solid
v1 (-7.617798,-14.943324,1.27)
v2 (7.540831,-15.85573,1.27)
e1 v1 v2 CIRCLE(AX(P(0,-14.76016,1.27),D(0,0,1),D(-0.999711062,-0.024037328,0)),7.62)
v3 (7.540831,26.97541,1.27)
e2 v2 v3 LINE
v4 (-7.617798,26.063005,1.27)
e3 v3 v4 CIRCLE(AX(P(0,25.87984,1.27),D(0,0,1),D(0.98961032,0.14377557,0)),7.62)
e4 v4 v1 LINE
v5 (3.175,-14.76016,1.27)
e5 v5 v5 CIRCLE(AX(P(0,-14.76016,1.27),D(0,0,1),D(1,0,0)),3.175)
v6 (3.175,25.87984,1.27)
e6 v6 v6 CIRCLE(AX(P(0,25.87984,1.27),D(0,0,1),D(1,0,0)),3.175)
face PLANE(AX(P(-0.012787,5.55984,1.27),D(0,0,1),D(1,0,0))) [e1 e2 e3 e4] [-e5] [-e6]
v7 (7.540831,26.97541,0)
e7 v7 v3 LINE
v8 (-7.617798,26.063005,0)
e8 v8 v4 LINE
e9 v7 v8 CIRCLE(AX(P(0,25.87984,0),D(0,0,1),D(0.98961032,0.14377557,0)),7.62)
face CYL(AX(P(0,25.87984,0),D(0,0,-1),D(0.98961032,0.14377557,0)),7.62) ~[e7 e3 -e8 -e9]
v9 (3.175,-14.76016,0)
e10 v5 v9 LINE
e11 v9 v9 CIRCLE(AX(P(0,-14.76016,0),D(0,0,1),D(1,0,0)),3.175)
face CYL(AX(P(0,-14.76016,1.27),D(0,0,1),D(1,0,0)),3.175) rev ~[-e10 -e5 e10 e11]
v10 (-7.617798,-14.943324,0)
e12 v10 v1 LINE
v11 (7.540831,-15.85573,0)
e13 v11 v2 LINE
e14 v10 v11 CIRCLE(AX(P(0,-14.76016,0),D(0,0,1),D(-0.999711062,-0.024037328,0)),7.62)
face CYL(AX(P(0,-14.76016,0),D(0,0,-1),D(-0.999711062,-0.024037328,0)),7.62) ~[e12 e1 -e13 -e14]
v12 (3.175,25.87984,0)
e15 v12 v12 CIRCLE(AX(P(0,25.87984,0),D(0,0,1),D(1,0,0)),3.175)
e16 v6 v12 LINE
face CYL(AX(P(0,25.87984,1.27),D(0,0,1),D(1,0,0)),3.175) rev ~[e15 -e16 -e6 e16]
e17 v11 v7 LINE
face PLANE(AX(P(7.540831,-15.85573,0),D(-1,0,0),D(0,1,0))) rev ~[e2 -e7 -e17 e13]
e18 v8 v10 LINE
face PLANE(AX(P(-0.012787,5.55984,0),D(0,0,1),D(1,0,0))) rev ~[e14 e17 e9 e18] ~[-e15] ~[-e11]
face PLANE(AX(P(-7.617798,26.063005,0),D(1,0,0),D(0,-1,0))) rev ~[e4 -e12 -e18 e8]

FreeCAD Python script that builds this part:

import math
import FreeCAD as App
import Part
import Sketcher

V = App.Vector
Q = App.Units.Quantity

doc = App.newDocument("Part")
params = doc.addObject("Spreadsheet::Sheet", "Params")
for row, (alias, value) in enumerate([
    ("sketch1_radius", "0.3 in"),
    ("pad1_length", "0.05 in"),
    ("sketch2_diameter", "0.25 in"),
    ("pocket1_length", "1 in"),
], start=1):
    params.set(f"A{row}", alias)
    params.set(f"B{row}", "=" + value)
    params.setAlias(f"B{row}", alias)

body = doc.addObject("PartDesign::Body", "Body")

# Sketch on XY plane
sketch1 = body.newObject("Sketcher::SketchObject", "Sketch")
sketch1.AttachmentSupport = (doc.getObject("XY_Plane"), [""])
sketch1.MapMode = "FlatFace"
sketch1.addGeometry([
    Part.ArcOfCircle(Part.Circle(V(0, 25.87984, 0), V(0, 0, 1), 7.62), math.radians(8.266382), math.radians(178.62263)),
    Part.LineSegment(V(-7.617798, 26.063005, 0), V(-7.617798, -14.943324, 0)),
    Part.ArcOfCircle(Part.Circle(V(0, -14.76016, 0), V(0, 0, 1), 7.62), math.radians(-178.62263), math.radians(-8.266382)),
    Part.LineSegment(V(7.540831, -15.85573, 0), V(7.540831, 26.97541, 0)),
], False)
sketch1.addConstraint([
    Sketcher.Constraint("Coincident", 0, 2, 1, 1),
    Sketcher.Constraint("Coincident", 1, 2, 2, 1),
    Sketcher.Constraint("Coincident", 2, 2, 3, 1),
    Sketcher.Constraint("Coincident", 3, 2, 0, 1),
    Sketcher.Constraint("Vertical", 1),
    Sketcher.Constraint("Vertical", 3),
    Sketcher.Constraint("Equal", 0, 2),
    Sketcher.Constraint("PointOnObject", 0, 3, -2),
    Sketcher.Constraint("PointOnObject", 2, 3, -2),
    Sketcher.Constraint("Radius", 0, Q("0.3 in")),
    Sketcher.Constraint("DistanceY", 2, 3, 0, 3, Q("1.6 in")),
    Sketcher.Constraint("DistanceY", 1, 2, 1, 1, Q("41.006329 mm")),
    Sketcher.Constraint("DistanceY", 3, 1, 3, 2, Q("42.83114 mm")),
    Sketcher.Constraint("DistanceY", -1, 1, 0, 3, Q("25.87984 mm")),
])
sketch1.setExpression("Constraints[9]", "Params.sketch1_radius")
pad1 = body.newObject("PartDesign::Pad", "Pad")
pad1.Profile = sketch1
pad1.setExpression("Length", "Params.pad1_length")

# Sketch on XY plane
sketch2 = body.newObject("Sketcher::SketchObject", "Sketch001")
sketch2.AttachmentSupport = (doc.getObject("XY_Plane"), [""])
sketch2.MapMode = "FlatFace"
sketch2.AttachmentOffset = App.Placement(V(0, 0, 0.05 * 25.4), App.Rotation())
sketch2.addGeometry([
    Part.Circle(V(0, 25.87984, 0), V(0, 0, 1), 3.175),
    Part.Circle(V(0, -14.76016, 0), V(0, 0, 1), 3.175),
], False)
sketch2.addConstraint([
    Sketcher.Constraint("Equal", 0, 1),
    Sketcher.Constraint("PointOnObject", 0, 3, -2),
    Sketcher.Constraint("PointOnObject", 1, 3, -2),
    Sketcher.Constraint("Diameter", 0, Q("0.25 in")),
    Sketcher.Constraint("DistanceY", 1, 3, 0, 3, Q("1.6 in")),
    Sketcher.Constraint("DistanceY", -1, 1, 0, 3, Q("25.87984 mm")),
])
sketch2.setExpression("Constraints[3]", "Params.sketch2_diameter")
pocket1 = body.newObject("PartDesign::Pocket", "Pocket")
pocket1.Profile = sketch2
pocket1.setExpression("Length", "Params.pocket1_length")

doc.recompute()
